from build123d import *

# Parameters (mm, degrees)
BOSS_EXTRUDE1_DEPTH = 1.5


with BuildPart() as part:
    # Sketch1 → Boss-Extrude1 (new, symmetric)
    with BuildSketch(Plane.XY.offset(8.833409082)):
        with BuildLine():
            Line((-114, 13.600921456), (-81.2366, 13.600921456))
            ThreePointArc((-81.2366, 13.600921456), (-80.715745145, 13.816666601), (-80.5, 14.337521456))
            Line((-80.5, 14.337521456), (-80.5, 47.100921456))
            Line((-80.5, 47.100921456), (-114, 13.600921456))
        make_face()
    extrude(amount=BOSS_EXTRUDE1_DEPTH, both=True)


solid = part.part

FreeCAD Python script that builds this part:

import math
import FreeCAD as App
import Part
import Sketcher
from FreeCAD import Vector

doc = App.newDocument("Part")
body = doc.addObject("PartDesign::Body", "Body")

# Sketch on XY plane
sketch1 = body.newObject("Sketcher::SketchObject", "Sketch")
sketch1.AttachmentSupport = (doc.getObject("XY_Plane"), [""])
sketch1.MapMode = "FlatFace"
sketch1.AttachmentOffset = App.Placement(Vector(0, 0, 8.833409), App.Rotation())
sketch1.addGeometry([
    Part.LineSegment(Vector(-114, 13.600921, 0), Vector(-81.2366, 13.600921, 0)),
    Part.ArcOfCircle(Part.Circle(Vector(-81.2366, 14.337521, 0), Vector(0, 0, 1), 0.7366), math.radians(-90), math.radians(0)),
    Part.LineSegment(Vector(-80.5, 14.337521, 0), Vector(-80.5, 47.100921, 0)),
    Part.LineSegment(Vector(-80.5, 47.100921, 0), Vector(-114, 13.600921, 0)),
], False)
sketch1.addConstraint([
    Sketcher.Constraint("Tangent", 0, 2, 1, 1),
    Sketcher.Constraint("Tangent", 1, 2, 2, 1),
    Sketcher.Constraint("Coincident", 2, 2, 3, 1),
    Sketcher.Constraint("Coincident", 3, 2, 0, 1),
    Sketcher.Constraint("Horizontal", 0),
    Sketcher.Constraint("Vertical", 2),
    Sketcher.Constraint("Equal", 0, 2),
    Sketcher.Constraint("DistanceX", 3, 2, -1, 1, 114.0),
    Sketcher.Constraint("DistanceX", 1, 2, -1, 1, 80.5),
    Sketcher.Constraint("Radius", 1, 0.7366),
    Sketcher.Constraint("DistanceY", -1, 1, 1, 3, 14.337521),
])
pad1 = body.newObject("PartDesign::Pad", "Pad")
pad1.Profile = sketch1
pad1.Length = 3
pad1.Midplane = True

doc.recompute()
